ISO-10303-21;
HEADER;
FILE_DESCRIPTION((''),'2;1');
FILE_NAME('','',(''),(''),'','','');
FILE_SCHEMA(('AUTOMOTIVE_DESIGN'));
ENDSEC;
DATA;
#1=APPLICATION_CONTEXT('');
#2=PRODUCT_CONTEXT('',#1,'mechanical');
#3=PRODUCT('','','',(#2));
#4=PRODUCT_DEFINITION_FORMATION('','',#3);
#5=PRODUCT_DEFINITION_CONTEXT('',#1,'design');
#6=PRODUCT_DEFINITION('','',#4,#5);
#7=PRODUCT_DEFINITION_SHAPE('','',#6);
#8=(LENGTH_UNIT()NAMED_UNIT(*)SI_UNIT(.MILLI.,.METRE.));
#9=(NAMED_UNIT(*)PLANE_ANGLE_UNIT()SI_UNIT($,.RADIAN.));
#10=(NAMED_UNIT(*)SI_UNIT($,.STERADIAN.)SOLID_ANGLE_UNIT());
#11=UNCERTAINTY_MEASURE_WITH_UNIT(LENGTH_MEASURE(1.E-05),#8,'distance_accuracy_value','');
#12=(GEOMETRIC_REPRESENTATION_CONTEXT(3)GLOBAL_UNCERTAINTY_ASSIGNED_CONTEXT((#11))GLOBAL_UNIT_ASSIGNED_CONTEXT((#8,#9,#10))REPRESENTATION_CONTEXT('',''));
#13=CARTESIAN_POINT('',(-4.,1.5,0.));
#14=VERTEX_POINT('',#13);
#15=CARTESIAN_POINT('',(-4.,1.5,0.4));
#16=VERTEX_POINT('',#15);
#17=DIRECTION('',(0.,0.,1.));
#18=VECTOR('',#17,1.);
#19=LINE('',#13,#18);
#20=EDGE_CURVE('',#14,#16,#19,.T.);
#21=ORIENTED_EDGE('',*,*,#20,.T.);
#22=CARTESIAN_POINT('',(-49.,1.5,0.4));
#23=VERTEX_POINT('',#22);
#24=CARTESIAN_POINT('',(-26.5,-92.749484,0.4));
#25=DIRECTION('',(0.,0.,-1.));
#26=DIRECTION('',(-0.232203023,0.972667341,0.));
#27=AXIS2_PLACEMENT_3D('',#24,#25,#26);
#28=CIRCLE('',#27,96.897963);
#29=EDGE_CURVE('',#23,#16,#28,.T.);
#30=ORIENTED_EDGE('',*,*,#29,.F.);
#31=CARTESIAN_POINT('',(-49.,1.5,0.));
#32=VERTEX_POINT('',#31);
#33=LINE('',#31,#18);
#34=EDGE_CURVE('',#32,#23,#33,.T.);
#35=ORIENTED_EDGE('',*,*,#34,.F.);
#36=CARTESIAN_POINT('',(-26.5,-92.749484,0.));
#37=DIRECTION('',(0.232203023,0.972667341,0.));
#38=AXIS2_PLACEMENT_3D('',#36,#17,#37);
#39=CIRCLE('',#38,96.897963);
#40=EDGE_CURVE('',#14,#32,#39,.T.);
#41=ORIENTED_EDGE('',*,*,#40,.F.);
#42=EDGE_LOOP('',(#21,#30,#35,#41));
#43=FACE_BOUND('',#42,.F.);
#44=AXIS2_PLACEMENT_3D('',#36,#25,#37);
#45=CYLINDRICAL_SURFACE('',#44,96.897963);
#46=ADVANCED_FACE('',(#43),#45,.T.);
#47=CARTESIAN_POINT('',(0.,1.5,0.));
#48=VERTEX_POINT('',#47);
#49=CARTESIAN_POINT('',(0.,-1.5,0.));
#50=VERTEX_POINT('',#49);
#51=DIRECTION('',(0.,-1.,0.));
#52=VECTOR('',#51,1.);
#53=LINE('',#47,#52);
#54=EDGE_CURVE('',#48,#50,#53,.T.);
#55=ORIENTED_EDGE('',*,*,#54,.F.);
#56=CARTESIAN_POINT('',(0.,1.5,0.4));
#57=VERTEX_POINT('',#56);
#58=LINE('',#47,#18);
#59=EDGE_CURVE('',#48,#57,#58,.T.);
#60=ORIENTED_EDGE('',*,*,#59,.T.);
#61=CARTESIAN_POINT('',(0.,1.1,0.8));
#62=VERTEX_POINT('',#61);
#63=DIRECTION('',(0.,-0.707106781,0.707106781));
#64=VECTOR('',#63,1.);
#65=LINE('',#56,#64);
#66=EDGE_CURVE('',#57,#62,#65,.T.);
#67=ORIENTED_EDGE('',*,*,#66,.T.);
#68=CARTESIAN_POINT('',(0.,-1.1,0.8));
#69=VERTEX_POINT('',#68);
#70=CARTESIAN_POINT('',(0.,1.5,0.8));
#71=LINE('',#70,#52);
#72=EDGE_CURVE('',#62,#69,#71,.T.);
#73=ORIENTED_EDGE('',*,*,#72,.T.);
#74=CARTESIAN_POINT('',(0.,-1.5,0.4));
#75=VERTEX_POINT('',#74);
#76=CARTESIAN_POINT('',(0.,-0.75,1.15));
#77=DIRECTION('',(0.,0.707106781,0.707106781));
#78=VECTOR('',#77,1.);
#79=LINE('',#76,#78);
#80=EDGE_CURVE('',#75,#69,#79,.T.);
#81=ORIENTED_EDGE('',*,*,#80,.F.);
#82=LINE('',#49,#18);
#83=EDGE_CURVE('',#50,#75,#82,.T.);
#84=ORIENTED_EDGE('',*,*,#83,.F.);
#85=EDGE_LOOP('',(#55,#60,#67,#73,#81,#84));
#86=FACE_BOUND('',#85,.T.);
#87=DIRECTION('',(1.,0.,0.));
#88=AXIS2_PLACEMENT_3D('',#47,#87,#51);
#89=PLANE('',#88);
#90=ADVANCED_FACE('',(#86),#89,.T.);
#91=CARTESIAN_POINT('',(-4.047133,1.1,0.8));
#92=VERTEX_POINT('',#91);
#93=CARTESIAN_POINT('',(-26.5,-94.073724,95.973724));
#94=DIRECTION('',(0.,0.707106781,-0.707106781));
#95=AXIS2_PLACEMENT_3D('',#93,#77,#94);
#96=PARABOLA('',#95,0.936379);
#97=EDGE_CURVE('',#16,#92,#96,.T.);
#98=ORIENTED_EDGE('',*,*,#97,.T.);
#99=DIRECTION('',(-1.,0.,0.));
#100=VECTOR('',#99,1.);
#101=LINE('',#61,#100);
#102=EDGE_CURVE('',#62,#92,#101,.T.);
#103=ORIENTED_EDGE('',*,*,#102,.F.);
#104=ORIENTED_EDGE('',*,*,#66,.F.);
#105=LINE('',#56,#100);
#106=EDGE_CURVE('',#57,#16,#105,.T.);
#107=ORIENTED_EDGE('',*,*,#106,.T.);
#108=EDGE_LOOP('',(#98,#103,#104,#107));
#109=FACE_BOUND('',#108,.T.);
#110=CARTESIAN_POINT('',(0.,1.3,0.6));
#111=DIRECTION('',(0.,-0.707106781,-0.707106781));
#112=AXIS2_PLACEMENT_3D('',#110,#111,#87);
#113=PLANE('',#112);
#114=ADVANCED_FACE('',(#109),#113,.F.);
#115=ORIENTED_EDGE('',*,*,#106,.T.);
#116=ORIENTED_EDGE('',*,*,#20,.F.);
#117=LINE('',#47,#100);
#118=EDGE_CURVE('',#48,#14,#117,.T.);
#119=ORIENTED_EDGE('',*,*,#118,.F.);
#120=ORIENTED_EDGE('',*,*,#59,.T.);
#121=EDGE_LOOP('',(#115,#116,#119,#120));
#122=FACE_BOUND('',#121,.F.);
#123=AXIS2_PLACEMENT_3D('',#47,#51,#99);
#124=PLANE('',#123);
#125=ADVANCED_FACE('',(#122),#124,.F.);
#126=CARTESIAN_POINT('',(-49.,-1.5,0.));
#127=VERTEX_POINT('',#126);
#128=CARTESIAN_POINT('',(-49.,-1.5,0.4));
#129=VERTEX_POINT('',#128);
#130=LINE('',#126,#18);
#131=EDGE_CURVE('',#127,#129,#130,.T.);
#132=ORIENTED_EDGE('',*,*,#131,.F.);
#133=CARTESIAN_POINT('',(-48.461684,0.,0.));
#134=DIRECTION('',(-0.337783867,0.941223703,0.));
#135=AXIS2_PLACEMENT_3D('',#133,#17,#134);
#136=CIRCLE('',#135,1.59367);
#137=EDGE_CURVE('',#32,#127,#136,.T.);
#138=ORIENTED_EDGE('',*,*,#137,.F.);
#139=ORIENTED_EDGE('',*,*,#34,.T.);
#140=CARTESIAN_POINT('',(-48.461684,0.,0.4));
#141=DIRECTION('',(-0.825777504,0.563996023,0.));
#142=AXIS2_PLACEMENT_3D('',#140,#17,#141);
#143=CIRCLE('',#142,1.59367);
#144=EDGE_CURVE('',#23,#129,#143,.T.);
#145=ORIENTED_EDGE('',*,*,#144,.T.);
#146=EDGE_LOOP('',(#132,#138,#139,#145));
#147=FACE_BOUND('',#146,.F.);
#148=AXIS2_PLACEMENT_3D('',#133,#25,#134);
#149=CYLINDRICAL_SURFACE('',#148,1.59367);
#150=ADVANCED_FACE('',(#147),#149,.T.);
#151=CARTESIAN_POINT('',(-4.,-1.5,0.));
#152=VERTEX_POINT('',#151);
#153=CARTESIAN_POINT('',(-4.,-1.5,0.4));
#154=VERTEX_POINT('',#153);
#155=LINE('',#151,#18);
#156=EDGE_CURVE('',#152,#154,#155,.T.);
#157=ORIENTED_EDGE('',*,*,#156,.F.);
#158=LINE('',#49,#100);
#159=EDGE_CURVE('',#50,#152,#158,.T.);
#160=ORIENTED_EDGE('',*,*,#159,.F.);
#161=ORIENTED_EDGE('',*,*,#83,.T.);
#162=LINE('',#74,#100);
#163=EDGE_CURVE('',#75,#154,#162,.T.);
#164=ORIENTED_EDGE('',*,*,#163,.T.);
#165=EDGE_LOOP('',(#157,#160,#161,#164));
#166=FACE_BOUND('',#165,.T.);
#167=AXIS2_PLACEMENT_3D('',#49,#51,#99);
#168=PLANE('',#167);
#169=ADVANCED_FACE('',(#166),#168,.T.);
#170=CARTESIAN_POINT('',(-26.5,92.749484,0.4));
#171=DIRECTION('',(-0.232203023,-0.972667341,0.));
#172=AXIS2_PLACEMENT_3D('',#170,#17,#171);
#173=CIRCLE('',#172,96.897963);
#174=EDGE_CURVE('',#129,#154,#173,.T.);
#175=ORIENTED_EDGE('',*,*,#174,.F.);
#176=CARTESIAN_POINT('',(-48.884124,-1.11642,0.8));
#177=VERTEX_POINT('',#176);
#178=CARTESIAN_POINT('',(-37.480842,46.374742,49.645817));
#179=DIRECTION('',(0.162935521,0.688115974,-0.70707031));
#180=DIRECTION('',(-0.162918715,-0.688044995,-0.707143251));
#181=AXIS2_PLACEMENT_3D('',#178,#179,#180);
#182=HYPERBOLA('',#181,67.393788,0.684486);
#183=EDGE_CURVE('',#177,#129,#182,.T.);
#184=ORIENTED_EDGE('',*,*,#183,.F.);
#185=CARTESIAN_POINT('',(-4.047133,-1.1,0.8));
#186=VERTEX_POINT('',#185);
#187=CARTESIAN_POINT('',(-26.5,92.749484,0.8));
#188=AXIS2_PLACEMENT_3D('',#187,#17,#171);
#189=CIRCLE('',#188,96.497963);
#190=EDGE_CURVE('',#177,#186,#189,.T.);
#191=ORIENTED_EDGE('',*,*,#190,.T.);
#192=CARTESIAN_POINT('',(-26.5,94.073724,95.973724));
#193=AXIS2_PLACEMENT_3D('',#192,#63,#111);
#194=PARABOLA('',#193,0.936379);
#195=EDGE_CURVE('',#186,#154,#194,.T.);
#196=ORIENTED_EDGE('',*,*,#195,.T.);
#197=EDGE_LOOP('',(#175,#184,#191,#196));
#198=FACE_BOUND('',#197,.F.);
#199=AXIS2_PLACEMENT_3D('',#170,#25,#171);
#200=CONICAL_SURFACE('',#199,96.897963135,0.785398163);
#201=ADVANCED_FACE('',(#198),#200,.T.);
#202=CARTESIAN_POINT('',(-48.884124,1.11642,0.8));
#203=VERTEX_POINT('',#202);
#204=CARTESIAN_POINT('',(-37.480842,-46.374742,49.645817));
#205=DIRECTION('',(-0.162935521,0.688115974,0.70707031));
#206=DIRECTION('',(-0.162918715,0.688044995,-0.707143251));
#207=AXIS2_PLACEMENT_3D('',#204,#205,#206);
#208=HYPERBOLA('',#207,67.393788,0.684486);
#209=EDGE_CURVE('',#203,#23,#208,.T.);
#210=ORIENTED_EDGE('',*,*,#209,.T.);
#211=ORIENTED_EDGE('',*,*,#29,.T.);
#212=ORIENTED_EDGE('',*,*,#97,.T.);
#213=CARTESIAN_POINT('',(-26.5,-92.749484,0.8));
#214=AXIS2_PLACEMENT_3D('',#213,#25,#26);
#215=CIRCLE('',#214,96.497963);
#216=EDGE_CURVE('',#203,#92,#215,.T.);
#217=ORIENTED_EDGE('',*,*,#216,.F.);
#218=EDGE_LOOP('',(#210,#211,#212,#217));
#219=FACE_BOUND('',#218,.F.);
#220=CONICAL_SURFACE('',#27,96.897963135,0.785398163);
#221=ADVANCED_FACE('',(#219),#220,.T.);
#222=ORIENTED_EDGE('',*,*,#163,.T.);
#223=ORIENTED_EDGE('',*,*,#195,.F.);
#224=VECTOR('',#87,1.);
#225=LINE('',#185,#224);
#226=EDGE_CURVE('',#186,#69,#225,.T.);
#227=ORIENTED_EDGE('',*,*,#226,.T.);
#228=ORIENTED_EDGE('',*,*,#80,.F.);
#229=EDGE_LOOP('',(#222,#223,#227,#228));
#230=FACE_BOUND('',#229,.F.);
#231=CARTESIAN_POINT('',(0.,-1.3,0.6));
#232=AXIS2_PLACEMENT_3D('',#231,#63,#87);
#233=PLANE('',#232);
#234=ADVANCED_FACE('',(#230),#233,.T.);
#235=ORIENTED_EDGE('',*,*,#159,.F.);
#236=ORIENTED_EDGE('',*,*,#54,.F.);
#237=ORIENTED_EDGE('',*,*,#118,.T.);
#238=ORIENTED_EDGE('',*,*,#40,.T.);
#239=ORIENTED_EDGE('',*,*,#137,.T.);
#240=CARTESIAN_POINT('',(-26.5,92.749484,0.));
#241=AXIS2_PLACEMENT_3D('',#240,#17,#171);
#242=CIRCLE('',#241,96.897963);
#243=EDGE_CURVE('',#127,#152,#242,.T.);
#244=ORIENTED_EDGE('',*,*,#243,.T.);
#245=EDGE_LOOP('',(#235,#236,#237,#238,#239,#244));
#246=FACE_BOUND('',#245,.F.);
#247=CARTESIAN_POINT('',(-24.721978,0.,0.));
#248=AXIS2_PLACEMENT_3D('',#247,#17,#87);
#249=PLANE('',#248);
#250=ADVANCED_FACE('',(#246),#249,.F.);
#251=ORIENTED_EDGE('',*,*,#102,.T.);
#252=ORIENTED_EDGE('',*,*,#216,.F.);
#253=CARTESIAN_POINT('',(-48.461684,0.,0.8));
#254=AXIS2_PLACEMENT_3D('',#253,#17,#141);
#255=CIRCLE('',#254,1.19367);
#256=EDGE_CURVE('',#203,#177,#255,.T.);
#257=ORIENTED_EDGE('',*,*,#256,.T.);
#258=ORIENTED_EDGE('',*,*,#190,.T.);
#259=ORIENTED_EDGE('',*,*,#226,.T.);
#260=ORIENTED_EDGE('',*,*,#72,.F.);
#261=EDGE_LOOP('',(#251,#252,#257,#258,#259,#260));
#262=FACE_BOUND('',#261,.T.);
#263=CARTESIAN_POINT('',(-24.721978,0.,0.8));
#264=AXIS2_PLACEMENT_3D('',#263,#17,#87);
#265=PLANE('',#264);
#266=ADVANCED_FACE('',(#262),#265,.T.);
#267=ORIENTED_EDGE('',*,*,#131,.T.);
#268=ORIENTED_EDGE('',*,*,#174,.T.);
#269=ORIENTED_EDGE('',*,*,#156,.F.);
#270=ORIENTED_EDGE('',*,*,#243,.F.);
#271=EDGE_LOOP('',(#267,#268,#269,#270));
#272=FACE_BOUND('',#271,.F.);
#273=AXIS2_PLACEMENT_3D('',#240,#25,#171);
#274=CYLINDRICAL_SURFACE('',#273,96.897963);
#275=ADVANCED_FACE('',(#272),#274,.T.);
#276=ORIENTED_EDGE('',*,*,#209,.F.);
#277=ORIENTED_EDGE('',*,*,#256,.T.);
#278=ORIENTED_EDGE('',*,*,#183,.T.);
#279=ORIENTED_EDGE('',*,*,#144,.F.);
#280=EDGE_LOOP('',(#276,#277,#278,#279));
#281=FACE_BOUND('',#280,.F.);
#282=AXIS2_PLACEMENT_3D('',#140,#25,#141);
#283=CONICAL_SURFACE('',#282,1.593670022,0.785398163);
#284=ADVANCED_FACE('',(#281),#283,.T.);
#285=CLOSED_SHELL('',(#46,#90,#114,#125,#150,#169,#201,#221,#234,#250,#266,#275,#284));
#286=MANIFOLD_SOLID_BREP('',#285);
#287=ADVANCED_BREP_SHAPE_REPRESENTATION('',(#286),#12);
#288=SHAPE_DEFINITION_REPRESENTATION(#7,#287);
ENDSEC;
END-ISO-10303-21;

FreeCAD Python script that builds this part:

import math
import FreeCAD as App
import Part
import Sketcher

V = App.Vector


def edges_at(feature, points):
    """Names of the edges that pass closest to the given points."""
    edges = feature.Shape.Edges
    near = lambda p: min(range(len(edges)), key=lambda i: edges[i].distToShape(Part.Vertex(*p))[0])
    return sorted({f"Edge{near(p) + 1}" for p in points})

doc = App.newDocument("Part")
body = doc.addObject("PartDesign::Body", "Body")

# Sketch on XY plane
sketch1 = body.newObject("Sketcher::SketchObject", "Sketch")
sketch1.AttachmentSupport = (doc.getObject("XY_Plane"), [""])
sketch1.MapMode = "FlatFace"
sketch1.addGeometry([
    Part.LineSegment(V(0, 1.5, 0), V(-4, 1.5, 0)),  # 0
    Part.ArcOfCircle(Part.Circle(V(-26.5, -92.7, 0), V(0, 0, 1), 96.9), math.radians(77), math.radians(103)),  # 1
    Part.ArcOfCircle(Part.Circle(V(-48.5, 0, 0), V(0, 0, 1), 1.6), math.radians(110), math.radians(250)),  # 2
    Part.ArcOfCircle(Part.Circle(V(-26.5, 92.7, 0), V(0, 0, 1), 96.9), math.radians(-103), math.radians(-77)),  # 3
    Part.LineSegment(V(-4, -1.5, 0), V(0, -1.5, 0)),  # 4
    Part.LineSegment(V(0, -1.5, 0), V(0, 1.5, 0)),  # 5
], False)
sketch1.addConstraint([
    Sketcher.Constraint("Coincident", 0, 2, 1, 1),
    Sketcher.Constraint("Coincident", 1, 2, 2, 1),
    Sketcher.Constraint("Coincident", 2, 2, 3, 1),
    Sketcher.Constraint("Coincident", 3, 2, 4, 1),
    Sketcher.Constraint("Coincident", 4, 2, 5, 1),
    Sketcher.Constraint("Coincident", 5, 2, 0, 1),
    Sketcher.Constraint("Horizontal", 0),
    Sketcher.Constraint("Horizontal", 4),
    Sketcher.Constraint("Vertical", 5),
    Sketcher.Constraint("Equal", 1, 3),
    Sketcher.Constraint("Symmetric", 4, 2, 5, 2, -1, 1),
    Sketcher.Constraint("Symmetric", 1, 3, 3, 3, -1),
    Sketcher.Constraint("PointOnObject", 2, 3, -1),
    Sketcher.Constraint("Horizontal", 0, 2, 1, 2),
    Sketcher.Constraint("DistanceX", 0, 2, 0, 1, 4.0),
    Sketcher.Constraint("DistanceY", 5, 1, 5, 2, 3.0),
    Sketcher.Constraint("DistanceX", 1, 2, -1, 1, 49.0),
    Sketcher.Constraint("Radius", 2, 1.59367),
    Sketcher.Constraint("Radius", 1, 96.897963),
])
pad1 = body.newObject("PartDesign::Pad", "Pad")
pad1.Profile = sketch1
pad1.Length = 0.8
doc.recompute()

chamfer = body.newObject("PartDesign::Chamfer", "Chamfer")
chamfer.Base = (pad1, edges_at(pad1, [(-2, 1.5, 0.8), (-2, -1.5, 0.8)]))
chamfer.Size = 0.4
doc.recompute()

chamfer2 = body.newObject("PartDesign::Chamfer", "Chamfer001")
chamfer2.Base = (chamfer, edges_at(chamfer, [(-25.669, 4.145, 0.8), (-25.669, 4.145, 0.8)]))
chamfer2.Size = 0.4
doc.recompute()

chamfer3 = body.newObject("PartDesign::Chamfer", "Chamfer002")
chamfer3.Base = (chamfer2, edges_at(chamfer2, [(-25.669, -4.145, 0.8), (-25.669, -4.145, 0.8)]))
chamfer3.Size = 0.4
doc.recompute()

chamfer4 = body.newObject("PartDesign::Chamfer", "Chamfer003")
chamfer4.Base = (chamfer3, edges_at(chamfer3, [(-50.055, 0, 0.8)]))
chamfer4.Size = 0.4

doc.recompute()
